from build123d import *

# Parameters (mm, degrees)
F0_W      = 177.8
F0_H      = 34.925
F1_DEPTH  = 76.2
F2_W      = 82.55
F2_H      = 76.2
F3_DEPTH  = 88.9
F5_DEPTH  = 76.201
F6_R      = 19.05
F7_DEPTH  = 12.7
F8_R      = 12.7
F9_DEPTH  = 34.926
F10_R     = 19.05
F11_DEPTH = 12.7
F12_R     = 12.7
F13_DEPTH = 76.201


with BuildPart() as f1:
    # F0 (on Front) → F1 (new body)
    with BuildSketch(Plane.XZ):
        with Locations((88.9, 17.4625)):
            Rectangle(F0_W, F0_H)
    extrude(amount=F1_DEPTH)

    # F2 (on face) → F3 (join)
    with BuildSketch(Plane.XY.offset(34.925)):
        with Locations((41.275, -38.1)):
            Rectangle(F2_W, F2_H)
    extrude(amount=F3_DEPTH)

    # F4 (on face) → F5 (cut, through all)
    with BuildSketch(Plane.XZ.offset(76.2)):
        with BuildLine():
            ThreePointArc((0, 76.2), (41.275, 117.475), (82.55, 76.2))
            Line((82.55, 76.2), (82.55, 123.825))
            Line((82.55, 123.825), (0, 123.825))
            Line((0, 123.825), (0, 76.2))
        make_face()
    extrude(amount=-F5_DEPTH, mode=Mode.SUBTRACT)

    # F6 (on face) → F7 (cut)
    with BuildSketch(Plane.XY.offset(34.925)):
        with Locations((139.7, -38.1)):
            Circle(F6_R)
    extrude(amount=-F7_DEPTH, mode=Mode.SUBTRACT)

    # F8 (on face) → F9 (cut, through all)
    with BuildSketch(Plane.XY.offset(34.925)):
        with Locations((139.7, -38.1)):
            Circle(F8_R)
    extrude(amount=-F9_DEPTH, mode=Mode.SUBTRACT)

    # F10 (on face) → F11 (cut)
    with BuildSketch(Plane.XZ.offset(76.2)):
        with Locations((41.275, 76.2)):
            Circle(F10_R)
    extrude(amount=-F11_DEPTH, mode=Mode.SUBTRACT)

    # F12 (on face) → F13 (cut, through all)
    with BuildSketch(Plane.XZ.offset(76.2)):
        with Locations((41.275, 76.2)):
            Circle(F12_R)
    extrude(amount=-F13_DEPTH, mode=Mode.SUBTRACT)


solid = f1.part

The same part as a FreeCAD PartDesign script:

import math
import FreeCAD as App
import Part
import Sketcher

V = App.Vector
Q = App.Units.Quantity


def add_polygon(sketch, points):
    """Adds a closed chain of lines whose ends are joined by coincident constraints."""
    first, n = sketch.GeometryCount, len(points)
    for a, b in zip(points, points[1:] + points[:1]):
        sketch.addGeometry(Part.LineSegment(App.Vector(*a, 0), App.Vector(*b, 0)), False)
    for i in range(n):
        sketch.addConstraint(Sketcher.Constraint("Coincident", first + i, 2, first + (i + 1) % n, 1))

doc = App.newDocument("Part")
params = doc.addObject("Spreadsheet::Sheet", "Params")
for row, (alias, value) in enumerate([
    ("sketch1_width", "7 in"),
    ("sketch1_height", "1.375 in"),
    ("pad1_length", "3 in"),
    ("sketch2_height", "3 in"),
    ("sketch2_width", "3.25 in"),
    ("pad2_length", "3.5 in"),
    ("sketch3_radius", "1.625 in"),
    ("sketch3_height", "1.875 in"),
    ("sketch4_diameter", "1.5 in"),
    ("pocket2_length", "0.5 in"),
    ("sketch5_diameter", "1 in"),
    ("sketch6_diameter", "1.5 in"),
    ("pocket4_length", "0.5 in"),
    ("sketch7_diameter", "1 in"),
], start=1):
    params.set(f"A{row}", alias)
    params.set(f"B{row}", "=" + value)
    params.setAlias(f"B{row}", alias)

body = doc.addObject("PartDesign::Body", "Body")

sketch1 = body.newObject("Sketcher::SketchObject", "Sketch")
sketch1.AttachmentSupport = (doc.getObject("XZ_Plane"), [""])
sketch1.MapMode = "FlatFace"
add_polygon(sketch1, [(0, 34.925), (0, 0), (177.8, 0), (177.8, 34.925)])
sketch1.addConstraint(Sketcher.Constraint("Vertical", 0))
sketch1.addConstraint(Sketcher.Constraint("Horizontal", 1))
sketch1.addConstraint(Sketcher.Constraint("Vertical", 2))
sketch1.addConstraint(Sketcher.Constraint("Horizontal", 3))
sketch1.addConstraint(Sketcher.Constraint("Coincident", 0, 2, -1, 1))
sketch1.addConstraint(Sketcher.Constraint("DistanceX", 1, 1, 1, 2, Q("7 in")))
sketch1.addConstraint(Sketcher.Constraint("DistanceY", 0, 2, 0, 1, Q("1.375 in")))
sketch1.setExpression("Constraints[9]", "Params.sketch1_width")
sketch1.setExpression("Constraints[10]", "Params.sketch1_height")
pad1 = body.newObject("PartDesign::Pad", "Pad")
pad1.Profile = sketch1
pad1.setExpression("Length", "Params.pad1_length")

sketch2 = body.newObject("Sketcher::SketchObject", "Sketch001")
sketch2.AttachmentSupport = (doc.getObject("XY_Plane"), [""])
sketch2.MapMode = "FlatFace"
sketch2.AttachmentOffset = App.Placement(V(0, 0, 1.375 * 25.4), App.Rotation())
add_polygon(sketch2, [(0, 0), (0, -76.2), (82.55, -76.2), (82.55, 0)])
sketch2.addConstraint(Sketcher.Constraint("Vertical", 0))
sketch2.addConstraint(Sketcher.Constraint("Horizontal", 1))
sketch2.addConstraint(Sketcher.Constraint("Vertical", 2))
sketch2.addConstraint(Sketcher.Constraint("Horizontal", 3))
sketch2.addConstraint(Sketcher.Constraint("Coincident", 3, 2, -1, 1))
sketch2.addConstraint(Sketcher.Constraint("DistanceY", 0, 2, 0, 1, Q("3 in")))
sketch2.addConstraint(Sketcher.Constraint("DistanceX", 1, 1, 1, 2, Q("3.25 in")))
sketch2.setExpression("Constraints[9]", "Params.sketch2_height")
sketch2.setExpression("Constraints[10]", "Params.sketch2_width")
pad2 = body.newObject("PartDesign::Pad", "Pad001")
pad2.Profile = sketch2
pad2.setExpression("Length", "Params.pad2_length")

sketch3 = body.newObject("Sketcher::SketchObject", "Sketch002")
sketch3.AttachmentSupport = (doc.getObject("XZ_Plane"), [""])
sketch3.MapMode = "FlatFace"
sketch3.AttachmentOffset = App.Placement(V(0, 0, 3 * 25.4), App.Rotation())
sketch3.addGeometry(Part.ArcOfCircle(Part.Circle(V(41.275, 76.2, 0), V(0, 0, 1), 41.275), math.radians(0), math.radians(180)), False)
sketch3.addGeometry(Part.LineSegment(V(82.55, 76.2, 0), V(82.55, 123.825, 0)), False)
sketch3.addGeometry(Part.LineSegment(V(82.55, 123.825, 0), V(0, 123.825, 0)), False)
sketch3.addGeometry(Part.LineSegment(V(0, 123.825, 0), V(0, 76.2, 0)), False)
sketch3.addConstraint(Sketcher.Constraint("Tangent", 0, 1, 1, 1))
sketch3.addConstraint(Sketcher.Constraint("Coincident", 1, 2, 2, 1))
sketch3.addConstraint(Sketcher.Constraint("Coincident", 2, 2, 3, 1))
sketch3.addConstraint(Sketcher.Constraint("Tangent", 3, 2, 0, 2))
sketch3.addConstraint(Sketcher.Constraint("Vertical", 1))
sketch3.addConstraint(Sketcher.Constraint("Horizontal", 2))
sketch3.addConstraint(Sketcher.Constraint("Vertical", 3))
sketch3.addConstraint(Sketcher.Constraint("PointOnObject", 2, 2, -2))
sketch3.addConstraint(Sketcher.Constraint("DistanceY", -1, 1, 0, 3, Q("3 in")))
sketch3.addConstraint(Sketcher.Constraint("Radius", 0, Q("1.625 in")))
sketch3.addConstraint(Sketcher.Constraint("DistanceY", 1, 1, 1, 2, Q("1.875 in")))
sketch3.setExpression("Constraints[9]", "Params.sketch3_radius")
sketch3.setExpression("Constraints[10]", "Params.sketch3_height")
pocket1 = body.newObject("PartDesign::Pocket", "Pocket")
pocket1.Profile = sketch3
pocket1.Type = "ThroughAll"

sketch4 = body.newObject("Sketcher::SketchObject", "Sketch003")
sketch4.AttachmentSupport = (doc.getObject("XY_Plane"), [""])
sketch4.MapMode = "FlatFace"
sketch4.AttachmentOffset = App.Placement(V(0, 0, 1.375 * 25.4), App.Rotation())
sketch4.addGeometry(Part.Circle(V(139.7, -38.1, 0), V(0, 0, 1), 19.05), False)
sketch4.addConstraint(Sketcher.Constraint("Diameter", 0, Q("1.5 in")))
sketch4.addConstraint(Sketcher.Constraint("DistanceX", -1, 1, 0, 3, Q("5.5 in")))
sketch4.addConstraint(Sketcher.Constraint("DistanceY", 0, 3, -1, 1, Q("1.5 in")))
sketch4.setExpression("Constraints[0]", "Params.sketch4_diameter")
pocket2 = body.newObject("PartDesign::Pocket", "Pocket001")
pocket2.Profile = sketch4
pocket2.setExpression("Length", "Params.pocket2_length")

sketch5 = body.newObject("Sketcher::SketchObject", "Sketch004")
sketch5.AttachmentSupport = (doc.getObject("XY_Plane"), [""])
sketch5.MapMode = "FlatFace"
sketch5.AttachmentOffset = App.Placement(V(0, 0, 1.375 * 25.4), App.Rotation())
sketch5.addGeometry(Part.Circle(V(139.7, -38.1, 0), V(0, 0, 1), 12.7), False)
sketch5.addConstraint(Sketcher.Constraint("Diameter", 0, Q("1 in")))
sketch5.addConstraint(Sketcher.Constraint("DistanceX", -1, 1, 0, 3, Q("5.5 in")))
sketch5.addConstraint(Sketcher.Constraint("DistanceY", 0, 3, -1, 1, Q("1.5 in")))
sketch5.setExpression("Constraints[0]", "Params.sketch5_diameter")
pocket3 = body.newObject("PartDesign::Pocket", "Pocket002")
pocket3.Profile = sketch5
pocket3.Type = "ThroughAll"

sketch6 = body.newObject("Sketcher::SketchObject", "Sketch005")
sketch6.AttachmentSupport = (doc.getObject("XZ_Plane"), [""])
sketch6.MapMode = "FlatFace"
sketch6.AttachmentOffset = App.Placement(V(0, 0, 3 * 25.4), App.Rotation())
sketch6.addGeometry(Part.Circle(V(41.275, 76.2, 0), V(0, 0, 1), 19.05), False)
sketch6.addConstraint(Sketcher.Constraint("Diameter", 0, Q("1.5 in")))
sketch6.addConstraint(Sketcher.Constraint("DistanceY", -1, 1, 0, 3, Q("3 in")))
sketch6.addConstraint(Sketcher.Constraint("DistanceX", -1, 1, 0, 3, Q("1.625 in")))
sketch6.setExpression("Constraints[0]", "Params.sketch6_diameter")
pocket4 = body.newObject("PartDesign::Pocket", "Pocket003")
pocket4.Profile = sketch6
pocket4.setExpression("Length", "Params.pocket4_length")

sketch7 = body.newObject("Sketcher::SketchObject", "Sketch006")
sketch7.AttachmentSupport = (doc.getObject("XZ_Plane"), [""])
sketch7.MapMode = "FlatFace"
sketch7.AttachmentOffset = App.Placement(V(0, 0, 3 * 25.4), App.Rotation())
sketch7.addGeometry(Part.Circle(V(41.275, 76.2, 0), V(0, 0, 1), 12.7), False)
sketch7.addConstraint(Sketcher.Constraint("Diameter", 0, Q("1 in")))
sketch7.addConstraint(Sketcher.Constraint("DistanceY", -1, 1, 0, 3, Q("3 in")))
sketch7.addConstraint(Sketcher.Constraint("DistanceX", -1, 1, 0, 3, Q("1.625 in")))
sketch7.setExpression("Constraints[0]", "Params.sketch7_diameter")
pocket5 = body.newObject("PartDesign::Pocket", "Pocket004")
pocket5.Profile = sketch7
pocket5.Type = "ThroughAll"

doc.recompute()
